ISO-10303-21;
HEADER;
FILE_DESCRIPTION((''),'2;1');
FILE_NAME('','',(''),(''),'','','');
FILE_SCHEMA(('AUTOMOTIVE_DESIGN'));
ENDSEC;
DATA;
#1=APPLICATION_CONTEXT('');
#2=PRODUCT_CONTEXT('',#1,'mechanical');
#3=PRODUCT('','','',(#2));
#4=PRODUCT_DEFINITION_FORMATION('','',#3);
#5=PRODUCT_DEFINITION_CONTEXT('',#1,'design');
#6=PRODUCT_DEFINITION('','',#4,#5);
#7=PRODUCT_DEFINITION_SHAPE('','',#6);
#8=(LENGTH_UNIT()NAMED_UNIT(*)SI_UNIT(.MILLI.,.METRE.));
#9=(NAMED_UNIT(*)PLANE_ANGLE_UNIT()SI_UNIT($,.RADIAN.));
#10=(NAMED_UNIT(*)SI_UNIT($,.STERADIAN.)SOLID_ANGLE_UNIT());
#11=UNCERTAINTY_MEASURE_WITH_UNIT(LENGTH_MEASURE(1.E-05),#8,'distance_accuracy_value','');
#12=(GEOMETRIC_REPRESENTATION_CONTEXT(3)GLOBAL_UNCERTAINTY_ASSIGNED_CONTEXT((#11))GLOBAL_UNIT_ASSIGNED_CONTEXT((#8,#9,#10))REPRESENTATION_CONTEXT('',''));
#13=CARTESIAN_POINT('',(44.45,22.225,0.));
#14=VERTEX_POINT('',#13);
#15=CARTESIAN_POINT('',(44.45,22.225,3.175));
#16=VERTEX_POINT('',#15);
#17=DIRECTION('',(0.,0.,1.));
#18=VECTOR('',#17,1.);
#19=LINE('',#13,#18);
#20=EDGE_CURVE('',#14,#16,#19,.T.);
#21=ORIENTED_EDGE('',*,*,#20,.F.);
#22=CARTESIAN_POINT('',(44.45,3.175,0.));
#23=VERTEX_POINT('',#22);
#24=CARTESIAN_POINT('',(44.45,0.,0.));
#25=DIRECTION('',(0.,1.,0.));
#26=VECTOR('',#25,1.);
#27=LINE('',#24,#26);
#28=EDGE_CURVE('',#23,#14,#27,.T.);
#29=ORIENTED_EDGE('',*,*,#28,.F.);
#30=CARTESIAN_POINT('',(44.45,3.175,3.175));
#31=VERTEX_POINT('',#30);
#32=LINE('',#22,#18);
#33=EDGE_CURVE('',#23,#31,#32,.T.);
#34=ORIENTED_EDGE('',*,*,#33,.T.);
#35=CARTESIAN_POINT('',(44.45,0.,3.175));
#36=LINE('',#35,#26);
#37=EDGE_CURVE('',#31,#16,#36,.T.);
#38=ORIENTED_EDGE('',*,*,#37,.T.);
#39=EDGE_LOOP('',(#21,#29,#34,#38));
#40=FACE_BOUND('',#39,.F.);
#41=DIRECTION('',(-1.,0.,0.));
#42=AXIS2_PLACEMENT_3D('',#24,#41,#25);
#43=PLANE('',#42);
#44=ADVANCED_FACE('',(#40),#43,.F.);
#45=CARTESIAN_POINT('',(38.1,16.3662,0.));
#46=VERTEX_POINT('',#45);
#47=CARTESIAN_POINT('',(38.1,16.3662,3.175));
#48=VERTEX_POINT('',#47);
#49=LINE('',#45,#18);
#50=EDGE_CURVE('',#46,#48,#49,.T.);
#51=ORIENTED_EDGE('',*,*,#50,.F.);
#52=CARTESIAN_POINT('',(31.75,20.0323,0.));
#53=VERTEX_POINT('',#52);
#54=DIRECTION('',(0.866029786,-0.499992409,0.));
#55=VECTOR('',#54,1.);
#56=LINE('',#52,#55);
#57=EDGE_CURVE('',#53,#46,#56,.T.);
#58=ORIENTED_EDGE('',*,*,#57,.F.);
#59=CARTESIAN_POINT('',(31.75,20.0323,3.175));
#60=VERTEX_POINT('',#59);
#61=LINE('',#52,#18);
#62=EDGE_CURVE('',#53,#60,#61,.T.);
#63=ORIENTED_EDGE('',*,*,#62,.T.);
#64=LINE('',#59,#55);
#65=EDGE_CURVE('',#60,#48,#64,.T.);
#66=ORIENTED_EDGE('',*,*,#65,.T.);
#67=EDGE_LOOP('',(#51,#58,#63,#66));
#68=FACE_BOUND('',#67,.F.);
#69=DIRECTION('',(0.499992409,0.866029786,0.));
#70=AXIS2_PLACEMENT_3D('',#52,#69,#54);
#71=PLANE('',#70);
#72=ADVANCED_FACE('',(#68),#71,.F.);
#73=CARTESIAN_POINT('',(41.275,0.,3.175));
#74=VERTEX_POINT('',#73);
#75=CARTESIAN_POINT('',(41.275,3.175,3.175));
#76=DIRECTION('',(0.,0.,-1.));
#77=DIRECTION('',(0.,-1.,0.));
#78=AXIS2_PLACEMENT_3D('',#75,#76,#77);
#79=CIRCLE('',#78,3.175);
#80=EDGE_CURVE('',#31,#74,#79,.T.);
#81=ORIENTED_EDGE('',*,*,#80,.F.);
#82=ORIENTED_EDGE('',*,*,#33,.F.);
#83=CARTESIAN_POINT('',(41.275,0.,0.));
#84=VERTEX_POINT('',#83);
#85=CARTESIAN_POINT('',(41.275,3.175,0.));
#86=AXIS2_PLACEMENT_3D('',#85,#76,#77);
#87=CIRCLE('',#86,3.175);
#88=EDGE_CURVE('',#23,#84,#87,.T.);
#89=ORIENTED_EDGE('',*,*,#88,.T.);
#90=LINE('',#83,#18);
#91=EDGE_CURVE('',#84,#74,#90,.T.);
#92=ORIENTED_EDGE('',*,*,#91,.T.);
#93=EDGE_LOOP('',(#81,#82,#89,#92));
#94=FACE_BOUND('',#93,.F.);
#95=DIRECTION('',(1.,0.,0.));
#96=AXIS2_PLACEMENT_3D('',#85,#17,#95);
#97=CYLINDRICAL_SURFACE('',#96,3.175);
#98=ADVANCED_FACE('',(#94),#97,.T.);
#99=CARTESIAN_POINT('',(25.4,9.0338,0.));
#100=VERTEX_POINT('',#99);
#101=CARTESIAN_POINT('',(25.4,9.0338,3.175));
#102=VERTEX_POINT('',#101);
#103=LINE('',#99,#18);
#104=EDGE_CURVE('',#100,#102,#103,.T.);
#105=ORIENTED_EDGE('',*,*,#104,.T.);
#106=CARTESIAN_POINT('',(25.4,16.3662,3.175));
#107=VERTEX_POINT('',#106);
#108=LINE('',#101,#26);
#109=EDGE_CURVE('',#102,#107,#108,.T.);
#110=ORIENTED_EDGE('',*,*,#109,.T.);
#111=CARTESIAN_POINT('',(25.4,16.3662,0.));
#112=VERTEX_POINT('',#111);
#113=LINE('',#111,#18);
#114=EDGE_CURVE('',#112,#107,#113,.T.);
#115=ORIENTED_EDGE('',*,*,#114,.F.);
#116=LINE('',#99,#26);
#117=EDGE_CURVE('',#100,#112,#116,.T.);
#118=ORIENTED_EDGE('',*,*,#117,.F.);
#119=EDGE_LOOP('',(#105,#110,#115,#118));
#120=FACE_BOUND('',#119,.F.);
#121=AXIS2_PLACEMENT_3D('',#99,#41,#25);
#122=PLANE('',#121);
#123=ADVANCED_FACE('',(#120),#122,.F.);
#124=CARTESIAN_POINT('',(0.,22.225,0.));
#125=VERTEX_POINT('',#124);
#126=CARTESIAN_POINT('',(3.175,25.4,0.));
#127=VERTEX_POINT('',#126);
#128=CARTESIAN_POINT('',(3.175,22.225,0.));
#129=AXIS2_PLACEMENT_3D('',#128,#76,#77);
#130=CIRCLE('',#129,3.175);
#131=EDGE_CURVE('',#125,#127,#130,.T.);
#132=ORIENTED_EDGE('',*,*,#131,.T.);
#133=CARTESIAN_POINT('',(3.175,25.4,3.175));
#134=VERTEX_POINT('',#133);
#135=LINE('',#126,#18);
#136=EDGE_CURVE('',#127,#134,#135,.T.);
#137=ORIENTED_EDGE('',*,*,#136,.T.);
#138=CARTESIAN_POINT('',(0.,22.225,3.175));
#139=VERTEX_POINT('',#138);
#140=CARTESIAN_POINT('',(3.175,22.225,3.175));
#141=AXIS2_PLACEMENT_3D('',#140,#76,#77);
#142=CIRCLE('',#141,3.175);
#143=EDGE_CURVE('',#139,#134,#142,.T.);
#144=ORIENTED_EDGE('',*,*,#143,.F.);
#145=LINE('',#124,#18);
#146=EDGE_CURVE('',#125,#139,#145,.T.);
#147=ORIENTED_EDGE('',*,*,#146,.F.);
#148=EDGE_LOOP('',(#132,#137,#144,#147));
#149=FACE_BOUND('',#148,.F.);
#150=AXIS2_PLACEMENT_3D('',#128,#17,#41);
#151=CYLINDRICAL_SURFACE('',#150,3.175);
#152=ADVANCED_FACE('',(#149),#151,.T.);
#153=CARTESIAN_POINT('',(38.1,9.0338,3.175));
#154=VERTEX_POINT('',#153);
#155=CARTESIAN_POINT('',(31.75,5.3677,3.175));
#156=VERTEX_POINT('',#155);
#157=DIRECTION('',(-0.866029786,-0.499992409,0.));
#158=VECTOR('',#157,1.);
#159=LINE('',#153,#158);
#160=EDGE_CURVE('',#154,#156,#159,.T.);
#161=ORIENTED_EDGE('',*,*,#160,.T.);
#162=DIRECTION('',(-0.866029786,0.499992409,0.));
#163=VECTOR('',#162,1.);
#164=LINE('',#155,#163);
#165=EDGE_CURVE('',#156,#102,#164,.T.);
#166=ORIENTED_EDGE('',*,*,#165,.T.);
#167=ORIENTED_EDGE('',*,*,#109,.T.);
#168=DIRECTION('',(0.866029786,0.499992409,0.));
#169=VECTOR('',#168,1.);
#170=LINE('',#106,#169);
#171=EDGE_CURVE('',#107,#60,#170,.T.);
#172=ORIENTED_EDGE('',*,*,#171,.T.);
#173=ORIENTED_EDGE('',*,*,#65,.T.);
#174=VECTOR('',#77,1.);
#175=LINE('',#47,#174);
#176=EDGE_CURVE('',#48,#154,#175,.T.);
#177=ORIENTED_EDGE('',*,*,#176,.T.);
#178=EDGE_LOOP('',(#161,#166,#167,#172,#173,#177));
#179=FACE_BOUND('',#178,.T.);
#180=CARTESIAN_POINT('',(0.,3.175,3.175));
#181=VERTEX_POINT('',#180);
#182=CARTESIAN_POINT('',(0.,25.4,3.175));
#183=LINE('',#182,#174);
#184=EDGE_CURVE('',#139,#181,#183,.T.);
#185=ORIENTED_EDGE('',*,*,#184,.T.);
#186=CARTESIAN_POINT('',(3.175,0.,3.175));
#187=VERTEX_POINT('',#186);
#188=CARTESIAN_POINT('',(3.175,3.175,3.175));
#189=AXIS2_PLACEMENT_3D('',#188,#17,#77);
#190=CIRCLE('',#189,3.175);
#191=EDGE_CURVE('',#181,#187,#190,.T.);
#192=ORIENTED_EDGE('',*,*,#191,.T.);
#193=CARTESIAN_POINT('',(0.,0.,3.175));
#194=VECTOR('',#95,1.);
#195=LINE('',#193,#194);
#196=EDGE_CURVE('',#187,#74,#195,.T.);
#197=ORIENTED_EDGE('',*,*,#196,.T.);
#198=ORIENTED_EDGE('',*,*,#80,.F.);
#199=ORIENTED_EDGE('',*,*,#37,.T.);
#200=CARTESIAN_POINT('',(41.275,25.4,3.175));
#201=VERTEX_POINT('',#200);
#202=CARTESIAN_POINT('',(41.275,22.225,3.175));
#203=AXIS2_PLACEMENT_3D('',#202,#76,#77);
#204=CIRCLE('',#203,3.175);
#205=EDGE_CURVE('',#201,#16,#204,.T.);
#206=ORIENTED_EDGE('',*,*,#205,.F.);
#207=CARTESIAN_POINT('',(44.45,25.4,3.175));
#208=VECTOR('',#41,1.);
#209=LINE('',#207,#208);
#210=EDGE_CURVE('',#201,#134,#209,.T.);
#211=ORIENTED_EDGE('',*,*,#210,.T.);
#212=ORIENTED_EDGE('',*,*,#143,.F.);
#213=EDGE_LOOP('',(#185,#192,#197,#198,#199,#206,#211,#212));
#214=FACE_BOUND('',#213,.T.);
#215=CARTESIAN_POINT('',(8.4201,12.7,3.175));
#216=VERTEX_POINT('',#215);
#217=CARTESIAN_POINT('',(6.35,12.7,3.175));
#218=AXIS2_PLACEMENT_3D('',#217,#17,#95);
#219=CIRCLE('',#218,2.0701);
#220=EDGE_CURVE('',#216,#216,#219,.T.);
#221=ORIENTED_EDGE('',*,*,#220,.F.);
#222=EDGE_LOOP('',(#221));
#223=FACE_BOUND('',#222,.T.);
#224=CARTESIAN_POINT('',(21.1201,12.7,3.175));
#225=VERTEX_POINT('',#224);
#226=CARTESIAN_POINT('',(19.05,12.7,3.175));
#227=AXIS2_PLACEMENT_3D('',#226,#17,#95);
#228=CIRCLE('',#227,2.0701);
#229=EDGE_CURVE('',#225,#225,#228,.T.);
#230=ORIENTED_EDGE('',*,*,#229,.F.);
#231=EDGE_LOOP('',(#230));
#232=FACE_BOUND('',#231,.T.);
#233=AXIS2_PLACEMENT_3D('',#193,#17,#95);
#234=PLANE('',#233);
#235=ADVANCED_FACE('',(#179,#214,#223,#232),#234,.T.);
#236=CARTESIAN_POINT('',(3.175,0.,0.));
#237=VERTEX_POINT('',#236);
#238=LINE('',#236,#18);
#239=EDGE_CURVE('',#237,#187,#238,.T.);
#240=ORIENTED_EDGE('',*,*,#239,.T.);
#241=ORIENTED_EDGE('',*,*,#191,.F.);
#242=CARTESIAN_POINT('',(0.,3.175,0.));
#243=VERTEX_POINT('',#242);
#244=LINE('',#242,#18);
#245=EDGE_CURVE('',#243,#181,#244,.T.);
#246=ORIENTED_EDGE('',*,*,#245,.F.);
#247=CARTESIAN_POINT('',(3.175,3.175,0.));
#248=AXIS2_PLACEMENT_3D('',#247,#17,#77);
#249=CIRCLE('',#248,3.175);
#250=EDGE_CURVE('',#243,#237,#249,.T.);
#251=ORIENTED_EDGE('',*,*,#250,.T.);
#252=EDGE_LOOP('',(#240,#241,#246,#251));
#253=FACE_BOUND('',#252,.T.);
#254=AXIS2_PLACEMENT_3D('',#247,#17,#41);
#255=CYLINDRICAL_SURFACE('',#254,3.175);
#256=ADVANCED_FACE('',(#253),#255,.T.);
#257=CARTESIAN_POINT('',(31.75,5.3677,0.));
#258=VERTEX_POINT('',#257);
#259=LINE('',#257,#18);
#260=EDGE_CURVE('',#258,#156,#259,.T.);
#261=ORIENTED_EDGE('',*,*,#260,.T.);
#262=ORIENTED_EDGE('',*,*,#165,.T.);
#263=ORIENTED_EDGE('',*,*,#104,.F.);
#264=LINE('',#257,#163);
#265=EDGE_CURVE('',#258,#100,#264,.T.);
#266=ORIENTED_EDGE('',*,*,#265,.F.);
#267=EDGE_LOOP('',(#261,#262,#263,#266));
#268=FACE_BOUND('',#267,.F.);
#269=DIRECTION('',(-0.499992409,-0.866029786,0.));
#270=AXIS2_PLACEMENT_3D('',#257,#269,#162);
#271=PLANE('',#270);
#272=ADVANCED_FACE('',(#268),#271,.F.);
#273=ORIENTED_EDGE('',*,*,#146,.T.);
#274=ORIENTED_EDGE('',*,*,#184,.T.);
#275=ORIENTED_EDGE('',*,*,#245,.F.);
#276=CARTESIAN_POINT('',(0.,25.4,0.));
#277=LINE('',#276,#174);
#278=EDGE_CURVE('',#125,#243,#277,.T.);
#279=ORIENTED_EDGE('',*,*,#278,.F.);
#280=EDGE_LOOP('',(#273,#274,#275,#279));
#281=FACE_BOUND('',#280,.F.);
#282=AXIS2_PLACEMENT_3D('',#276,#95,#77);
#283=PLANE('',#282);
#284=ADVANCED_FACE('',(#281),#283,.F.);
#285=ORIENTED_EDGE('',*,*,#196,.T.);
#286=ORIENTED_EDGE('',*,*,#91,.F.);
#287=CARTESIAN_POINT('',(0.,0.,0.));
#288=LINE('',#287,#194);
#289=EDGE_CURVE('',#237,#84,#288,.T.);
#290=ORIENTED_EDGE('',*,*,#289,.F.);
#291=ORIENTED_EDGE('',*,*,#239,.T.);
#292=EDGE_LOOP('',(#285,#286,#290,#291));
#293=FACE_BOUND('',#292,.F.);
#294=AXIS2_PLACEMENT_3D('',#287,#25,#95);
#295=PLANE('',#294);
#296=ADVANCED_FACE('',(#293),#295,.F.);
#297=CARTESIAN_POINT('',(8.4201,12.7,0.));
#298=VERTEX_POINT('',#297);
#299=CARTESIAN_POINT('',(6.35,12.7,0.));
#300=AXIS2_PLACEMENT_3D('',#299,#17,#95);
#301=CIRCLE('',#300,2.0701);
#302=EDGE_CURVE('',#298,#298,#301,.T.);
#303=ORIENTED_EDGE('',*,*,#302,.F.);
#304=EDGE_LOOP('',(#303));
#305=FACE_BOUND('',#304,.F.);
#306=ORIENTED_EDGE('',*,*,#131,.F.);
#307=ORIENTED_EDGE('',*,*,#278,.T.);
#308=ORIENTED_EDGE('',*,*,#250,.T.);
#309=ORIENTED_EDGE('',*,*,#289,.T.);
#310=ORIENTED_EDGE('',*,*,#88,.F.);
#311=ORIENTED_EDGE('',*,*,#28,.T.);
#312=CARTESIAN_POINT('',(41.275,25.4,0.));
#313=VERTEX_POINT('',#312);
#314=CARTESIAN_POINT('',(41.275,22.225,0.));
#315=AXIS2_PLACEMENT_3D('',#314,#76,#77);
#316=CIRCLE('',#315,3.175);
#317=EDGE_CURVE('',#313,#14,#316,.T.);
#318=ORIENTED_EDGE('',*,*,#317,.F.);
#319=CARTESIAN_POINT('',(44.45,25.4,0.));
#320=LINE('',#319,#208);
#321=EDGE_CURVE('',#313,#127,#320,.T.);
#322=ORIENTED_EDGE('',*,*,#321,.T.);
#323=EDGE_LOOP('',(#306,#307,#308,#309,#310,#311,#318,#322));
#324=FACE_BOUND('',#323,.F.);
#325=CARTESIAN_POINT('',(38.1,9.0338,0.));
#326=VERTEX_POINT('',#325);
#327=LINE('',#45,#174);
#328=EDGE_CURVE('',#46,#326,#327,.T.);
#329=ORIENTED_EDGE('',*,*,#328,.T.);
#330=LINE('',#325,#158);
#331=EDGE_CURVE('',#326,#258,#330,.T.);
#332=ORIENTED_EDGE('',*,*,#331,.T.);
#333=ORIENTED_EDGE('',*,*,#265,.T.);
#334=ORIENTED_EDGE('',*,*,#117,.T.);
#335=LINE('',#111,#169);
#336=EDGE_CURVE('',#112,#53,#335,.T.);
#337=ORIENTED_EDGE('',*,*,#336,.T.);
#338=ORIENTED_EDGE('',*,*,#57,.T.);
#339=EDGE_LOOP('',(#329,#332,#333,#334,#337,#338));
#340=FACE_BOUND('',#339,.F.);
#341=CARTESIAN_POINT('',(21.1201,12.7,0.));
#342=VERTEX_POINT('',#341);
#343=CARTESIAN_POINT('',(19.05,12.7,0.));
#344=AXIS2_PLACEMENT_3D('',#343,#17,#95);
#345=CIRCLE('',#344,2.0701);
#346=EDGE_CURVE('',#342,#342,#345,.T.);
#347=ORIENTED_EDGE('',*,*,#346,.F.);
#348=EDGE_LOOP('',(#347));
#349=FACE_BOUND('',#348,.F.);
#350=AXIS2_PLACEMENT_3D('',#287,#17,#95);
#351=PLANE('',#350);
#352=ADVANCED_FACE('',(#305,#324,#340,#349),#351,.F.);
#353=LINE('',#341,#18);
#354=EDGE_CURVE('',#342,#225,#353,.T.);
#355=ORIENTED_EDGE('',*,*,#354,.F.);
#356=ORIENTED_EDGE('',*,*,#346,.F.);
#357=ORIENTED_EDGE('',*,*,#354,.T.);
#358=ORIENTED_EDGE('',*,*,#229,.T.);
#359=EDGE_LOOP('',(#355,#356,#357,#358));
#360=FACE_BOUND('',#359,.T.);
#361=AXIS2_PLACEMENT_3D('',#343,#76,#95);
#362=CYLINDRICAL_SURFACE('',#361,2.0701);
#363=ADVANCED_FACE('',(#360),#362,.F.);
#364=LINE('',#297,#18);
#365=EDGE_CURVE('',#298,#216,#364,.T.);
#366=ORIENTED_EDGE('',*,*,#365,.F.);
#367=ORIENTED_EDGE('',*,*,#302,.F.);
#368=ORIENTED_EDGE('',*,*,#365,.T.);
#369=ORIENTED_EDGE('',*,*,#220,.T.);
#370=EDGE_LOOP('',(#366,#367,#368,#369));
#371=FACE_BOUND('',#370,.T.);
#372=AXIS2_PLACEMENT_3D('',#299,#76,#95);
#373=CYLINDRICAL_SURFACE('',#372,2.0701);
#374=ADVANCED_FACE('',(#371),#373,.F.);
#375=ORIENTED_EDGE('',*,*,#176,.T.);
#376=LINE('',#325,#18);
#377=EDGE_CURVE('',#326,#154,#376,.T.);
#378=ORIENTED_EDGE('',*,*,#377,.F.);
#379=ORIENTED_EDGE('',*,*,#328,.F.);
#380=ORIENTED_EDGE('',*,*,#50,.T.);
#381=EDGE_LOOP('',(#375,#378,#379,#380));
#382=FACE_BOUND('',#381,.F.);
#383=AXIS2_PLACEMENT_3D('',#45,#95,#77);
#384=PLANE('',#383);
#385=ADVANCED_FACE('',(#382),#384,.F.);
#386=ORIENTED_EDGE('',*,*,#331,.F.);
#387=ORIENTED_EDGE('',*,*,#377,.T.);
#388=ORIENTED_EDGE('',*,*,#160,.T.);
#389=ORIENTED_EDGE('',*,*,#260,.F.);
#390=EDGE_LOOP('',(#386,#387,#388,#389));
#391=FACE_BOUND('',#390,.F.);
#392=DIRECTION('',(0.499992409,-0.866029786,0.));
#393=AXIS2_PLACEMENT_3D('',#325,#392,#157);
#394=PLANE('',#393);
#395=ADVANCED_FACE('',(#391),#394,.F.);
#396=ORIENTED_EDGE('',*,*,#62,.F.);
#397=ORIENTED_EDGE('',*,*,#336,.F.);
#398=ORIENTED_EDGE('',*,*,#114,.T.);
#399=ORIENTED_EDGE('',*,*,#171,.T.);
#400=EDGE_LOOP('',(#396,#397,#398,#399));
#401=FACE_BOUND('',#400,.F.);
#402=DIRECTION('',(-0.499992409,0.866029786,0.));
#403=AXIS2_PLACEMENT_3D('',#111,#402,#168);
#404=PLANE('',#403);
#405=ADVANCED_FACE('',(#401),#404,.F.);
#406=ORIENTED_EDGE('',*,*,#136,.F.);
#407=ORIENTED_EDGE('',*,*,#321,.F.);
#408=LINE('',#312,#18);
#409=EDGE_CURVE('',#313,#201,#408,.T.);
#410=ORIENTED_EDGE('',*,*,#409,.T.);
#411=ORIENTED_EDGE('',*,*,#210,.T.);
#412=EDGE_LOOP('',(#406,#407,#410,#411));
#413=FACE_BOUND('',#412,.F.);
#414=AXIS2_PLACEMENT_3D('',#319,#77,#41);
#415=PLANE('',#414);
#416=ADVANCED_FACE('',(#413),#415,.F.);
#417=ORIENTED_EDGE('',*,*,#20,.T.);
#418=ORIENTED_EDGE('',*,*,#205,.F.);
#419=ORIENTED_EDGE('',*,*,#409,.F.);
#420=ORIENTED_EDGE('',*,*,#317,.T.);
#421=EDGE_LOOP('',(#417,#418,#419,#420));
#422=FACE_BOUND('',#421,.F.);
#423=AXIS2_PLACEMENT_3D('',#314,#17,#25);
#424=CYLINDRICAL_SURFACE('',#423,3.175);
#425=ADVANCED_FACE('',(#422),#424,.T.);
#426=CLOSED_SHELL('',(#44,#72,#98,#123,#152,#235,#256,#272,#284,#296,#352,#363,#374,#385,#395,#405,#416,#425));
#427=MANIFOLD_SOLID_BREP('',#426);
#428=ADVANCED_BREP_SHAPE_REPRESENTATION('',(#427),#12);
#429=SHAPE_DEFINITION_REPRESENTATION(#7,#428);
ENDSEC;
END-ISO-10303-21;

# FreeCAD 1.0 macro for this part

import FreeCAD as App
import Part
import Sketcher
Q = App.Units.Quantity


def edges_at(feature, points):
    """Names of the edges that pass closest to the given points."""
    edges = feature.Shape.Edges
    near = lambda p: min(range(len(edges)), key=lambda i: edges[i].distToShape(Part.Vertex(*p))[0])
    return sorted({f"Edge{near(p) + 1}" for p in points})


def add_polygon(sketch, points):
    """Adds a closed chain of lines whose ends are joined by coincident constraints."""
    first, n = sketch.GeometryCount, len(points)
    for a, b in zip(points, points[1:] + points[:1]):
        sketch.addGeometry(Part.LineSegment(App.Vector(*a, 0), App.Vector(*b, 0)), False)
    for i in range(n):
        sketch.addConstraint(Sketcher.Constraint("Coincident", first + i, 2, first + (i + 1) % n, 1))

doc = App.newDocument("Part")
body = doc.addObject("PartDesign::Body", "Body")

# Sketch on XY plane
sketch1 = doc.addObject("Sketcher::SketchObject", "Sketch")
body.addObject(sketch1)
sketch1.AttachmentSupport = (doc.XY_Plane, [""])
sketch1.MapMode = "FlatFace"
add_polygon(sketch1, [(0, 25.4), (0, 0), (44.5, 0), (44.5, 25.4)])  # lines 0-3
sketch1.addGeometry(Part.Circle(App.Vector(6.3, 12.7, 0), App.Vector(0, 0, 1), 2.1), False)  # 4
sketch1.addGeometry(Part.Circle(App.Vector(19.1, 12.7, 0), App.Vector(0, 0, 1), 2.1), False)  # 5
add_polygon(sketch1, [(25.4, 16.4), (31.8, 20), (38.1, 16.4), (38.1, 9), (31.8, 5.4), (25.4, 9)])  # lines 6-11
sketch1.addConstraint([
    Sketcher.Constraint("Vertical", 0),
    Sketcher.Constraint("Horizontal", 1),
    Sketcher.Constraint("Vertical", 2),
    Sketcher.Constraint("Horizontal", 3),
    Sketcher.Constraint("Vertical", 8),
    Sketcher.Constraint("Vertical", 11),
    Sketcher.Constraint("Coincident", 0, 2, -1, 1),
    Sketcher.Constraint("Equal", 4, 5),
    Sketcher.Constraint("Parallel", 6, 9),
    Sketcher.Constraint("Parallel", 7, 10),
    Sketcher.Constraint("Horizontal", 4, 3, 5, 3),
    Sketcher.Constraint("Horizontal", 8, 2, 10, 2),
    Sketcher.Constraint("Horizontal", 7, 2, 11, 2),
    Sketcher.Constraint("Vertical", 6, 2, 9, 2),
    Sketcher.Constraint("DistanceY", 0, 2, 0, 1, Q("1 in")),
    Sketcher.Constraint("Diameter", 4, Q("0.163 in")),
    Sketcher.Constraint("DistanceX", -1, 1, 10, 2, Q("1 in")),
    Sketcher.Constraint("DistanceX", 5, 3, 1, 2, Q("1 in")),
    Sketcher.Constraint("DistanceX", 4, 3, 6, 2, Q("1 in")),
    Sketcher.Constraint("DistanceX", 1, 1, 1, 2, Q("1.75 in")),
    Sketcher.Constraint("DistanceY", -1, 1, 4, 3, Q("0.5 in")),
    Sketcher.Constraint("DistanceX", 4, 3, 5, 3, Q("0.5 in")),
    Sketcher.Constraint("Angle", 6, Q("29.9995 deg")),
    Sketcher.Constraint("DistanceY", 8, 2, 6, 2, Q("0.433 in")),
    Sketcher.Constraint("DistanceY", -1, 1, 6, 2, 20.0323),
])
pad1 = doc.addObject("PartDesign::Pad", "Pad")
body.addObject(pad1)
pad1.Profile = sketch1
pad1.Length = Q("0.125 in")
doc.recompute()

fillet = doc.addObject("PartDesign::Fillet", "Fillet")
body.addObject(fillet)
fillet.Base = (pad1, edges_at(pad1, [
    (44.45, 25.4, 1.587),
    (44.45, 0, 1.587),
    (0, 25.4, 1.587),
    (0, 0, 1.587),
]))
fillet.Radius = Q("0.125 in")

doc.recompute()
